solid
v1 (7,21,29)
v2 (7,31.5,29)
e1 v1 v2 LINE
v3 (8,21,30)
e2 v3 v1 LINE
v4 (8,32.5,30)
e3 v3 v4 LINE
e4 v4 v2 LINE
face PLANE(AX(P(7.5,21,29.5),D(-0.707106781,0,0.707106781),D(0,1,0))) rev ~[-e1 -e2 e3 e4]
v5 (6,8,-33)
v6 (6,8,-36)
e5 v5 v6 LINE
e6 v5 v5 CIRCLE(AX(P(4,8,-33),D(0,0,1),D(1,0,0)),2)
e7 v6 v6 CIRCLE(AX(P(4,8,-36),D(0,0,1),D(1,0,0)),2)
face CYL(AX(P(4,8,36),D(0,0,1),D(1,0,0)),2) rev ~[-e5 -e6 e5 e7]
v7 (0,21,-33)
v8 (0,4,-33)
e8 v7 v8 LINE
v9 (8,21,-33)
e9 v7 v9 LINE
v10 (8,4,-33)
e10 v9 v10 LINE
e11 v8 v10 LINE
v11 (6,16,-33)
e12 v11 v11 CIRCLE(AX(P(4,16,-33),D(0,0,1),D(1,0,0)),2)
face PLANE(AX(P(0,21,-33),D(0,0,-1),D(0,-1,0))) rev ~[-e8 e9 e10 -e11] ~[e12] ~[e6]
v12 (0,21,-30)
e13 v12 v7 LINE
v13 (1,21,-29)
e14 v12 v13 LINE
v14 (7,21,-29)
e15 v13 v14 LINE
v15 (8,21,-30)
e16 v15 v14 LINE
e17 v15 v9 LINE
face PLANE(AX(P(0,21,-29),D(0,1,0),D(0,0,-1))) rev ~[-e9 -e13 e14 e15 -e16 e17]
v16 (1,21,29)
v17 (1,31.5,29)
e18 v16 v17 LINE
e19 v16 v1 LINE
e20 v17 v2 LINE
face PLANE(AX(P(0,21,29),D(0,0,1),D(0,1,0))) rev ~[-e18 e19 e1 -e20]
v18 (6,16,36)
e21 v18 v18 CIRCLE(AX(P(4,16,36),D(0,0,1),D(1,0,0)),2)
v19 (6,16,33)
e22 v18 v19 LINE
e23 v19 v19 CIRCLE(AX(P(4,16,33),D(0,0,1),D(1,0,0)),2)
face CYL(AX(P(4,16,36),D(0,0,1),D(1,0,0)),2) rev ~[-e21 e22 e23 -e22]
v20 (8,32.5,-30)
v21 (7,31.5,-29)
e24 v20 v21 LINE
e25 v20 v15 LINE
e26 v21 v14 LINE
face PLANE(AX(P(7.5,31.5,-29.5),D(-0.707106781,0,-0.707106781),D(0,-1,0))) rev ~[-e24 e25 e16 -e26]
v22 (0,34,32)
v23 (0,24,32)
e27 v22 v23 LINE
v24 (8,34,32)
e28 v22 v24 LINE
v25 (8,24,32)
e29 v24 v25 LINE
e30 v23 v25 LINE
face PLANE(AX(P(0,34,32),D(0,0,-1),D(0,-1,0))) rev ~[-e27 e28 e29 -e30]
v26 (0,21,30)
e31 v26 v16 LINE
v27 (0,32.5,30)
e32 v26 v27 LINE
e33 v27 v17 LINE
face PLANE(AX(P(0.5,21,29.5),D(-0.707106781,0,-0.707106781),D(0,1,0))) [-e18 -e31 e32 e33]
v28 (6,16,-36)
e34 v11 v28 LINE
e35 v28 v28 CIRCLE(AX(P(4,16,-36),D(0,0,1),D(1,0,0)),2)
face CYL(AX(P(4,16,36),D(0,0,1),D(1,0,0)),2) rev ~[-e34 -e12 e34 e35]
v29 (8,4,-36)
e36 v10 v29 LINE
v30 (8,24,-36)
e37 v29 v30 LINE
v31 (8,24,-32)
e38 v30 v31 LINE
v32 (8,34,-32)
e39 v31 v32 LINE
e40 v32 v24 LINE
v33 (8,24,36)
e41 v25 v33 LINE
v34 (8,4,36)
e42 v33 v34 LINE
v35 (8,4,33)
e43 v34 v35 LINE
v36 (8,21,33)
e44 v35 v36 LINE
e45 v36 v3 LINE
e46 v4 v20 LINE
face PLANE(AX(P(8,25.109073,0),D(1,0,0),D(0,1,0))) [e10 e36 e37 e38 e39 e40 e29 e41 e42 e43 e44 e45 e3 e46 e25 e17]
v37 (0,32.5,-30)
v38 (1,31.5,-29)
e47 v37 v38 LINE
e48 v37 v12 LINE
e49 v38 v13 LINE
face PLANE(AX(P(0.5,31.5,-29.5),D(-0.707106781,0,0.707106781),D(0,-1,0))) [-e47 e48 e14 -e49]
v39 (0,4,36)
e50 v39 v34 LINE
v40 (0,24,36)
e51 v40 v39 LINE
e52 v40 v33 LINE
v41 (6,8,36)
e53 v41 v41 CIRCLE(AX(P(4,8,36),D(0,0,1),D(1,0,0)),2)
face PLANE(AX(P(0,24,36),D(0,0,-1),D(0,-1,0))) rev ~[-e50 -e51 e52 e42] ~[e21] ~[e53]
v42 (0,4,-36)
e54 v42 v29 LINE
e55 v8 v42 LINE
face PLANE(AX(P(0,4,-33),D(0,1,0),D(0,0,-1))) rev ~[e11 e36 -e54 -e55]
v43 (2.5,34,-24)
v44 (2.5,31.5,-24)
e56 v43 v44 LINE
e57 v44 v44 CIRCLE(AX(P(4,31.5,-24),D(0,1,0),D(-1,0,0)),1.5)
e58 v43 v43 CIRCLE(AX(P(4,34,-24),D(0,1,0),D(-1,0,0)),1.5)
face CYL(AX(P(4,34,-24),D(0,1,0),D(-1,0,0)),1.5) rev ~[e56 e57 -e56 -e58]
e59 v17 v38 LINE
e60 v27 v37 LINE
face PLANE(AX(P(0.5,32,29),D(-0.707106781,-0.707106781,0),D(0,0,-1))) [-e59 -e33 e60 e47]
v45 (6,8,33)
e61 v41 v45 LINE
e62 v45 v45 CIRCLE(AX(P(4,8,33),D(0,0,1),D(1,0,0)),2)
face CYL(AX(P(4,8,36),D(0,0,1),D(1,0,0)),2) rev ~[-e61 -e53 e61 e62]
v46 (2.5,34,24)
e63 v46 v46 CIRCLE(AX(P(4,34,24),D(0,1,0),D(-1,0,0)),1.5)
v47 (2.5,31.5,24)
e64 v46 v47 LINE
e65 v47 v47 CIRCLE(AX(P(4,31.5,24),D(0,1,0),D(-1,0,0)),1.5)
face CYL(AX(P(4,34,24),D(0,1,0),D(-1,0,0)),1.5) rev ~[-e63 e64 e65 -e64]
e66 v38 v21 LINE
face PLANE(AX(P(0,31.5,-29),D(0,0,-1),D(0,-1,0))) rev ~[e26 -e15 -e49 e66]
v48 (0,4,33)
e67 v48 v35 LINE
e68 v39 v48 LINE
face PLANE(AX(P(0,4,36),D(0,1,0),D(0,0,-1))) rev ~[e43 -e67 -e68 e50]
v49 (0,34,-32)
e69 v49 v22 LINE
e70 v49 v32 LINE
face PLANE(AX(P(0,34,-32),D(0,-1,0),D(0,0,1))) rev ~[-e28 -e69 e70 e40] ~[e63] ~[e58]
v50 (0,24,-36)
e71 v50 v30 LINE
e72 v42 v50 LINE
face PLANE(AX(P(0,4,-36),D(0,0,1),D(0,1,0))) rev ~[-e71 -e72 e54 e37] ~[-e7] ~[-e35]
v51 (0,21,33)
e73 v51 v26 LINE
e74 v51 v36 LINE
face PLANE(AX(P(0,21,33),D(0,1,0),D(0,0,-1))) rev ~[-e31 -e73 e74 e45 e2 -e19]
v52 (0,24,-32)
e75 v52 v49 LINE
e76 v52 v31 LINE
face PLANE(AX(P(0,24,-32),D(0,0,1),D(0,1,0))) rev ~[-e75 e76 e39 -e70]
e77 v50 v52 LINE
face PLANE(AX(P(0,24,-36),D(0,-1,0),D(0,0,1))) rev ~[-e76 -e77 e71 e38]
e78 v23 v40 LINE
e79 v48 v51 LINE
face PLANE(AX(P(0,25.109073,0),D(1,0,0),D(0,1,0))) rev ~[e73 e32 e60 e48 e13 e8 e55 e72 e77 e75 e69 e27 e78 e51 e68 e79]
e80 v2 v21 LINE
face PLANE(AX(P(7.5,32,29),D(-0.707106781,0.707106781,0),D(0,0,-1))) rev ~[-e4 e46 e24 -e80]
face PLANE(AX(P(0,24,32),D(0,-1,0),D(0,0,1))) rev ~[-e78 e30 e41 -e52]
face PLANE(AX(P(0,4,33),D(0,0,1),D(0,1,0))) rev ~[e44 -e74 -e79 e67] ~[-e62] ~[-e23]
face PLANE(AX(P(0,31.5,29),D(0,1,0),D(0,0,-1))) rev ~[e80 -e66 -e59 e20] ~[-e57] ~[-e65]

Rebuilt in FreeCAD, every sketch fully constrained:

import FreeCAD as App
import Part
import Sketcher

V = App.Vector
Q = App.Units.Quantity


def edges_at(feature, points):
    """Names of the edges that pass closest to the given points."""
    edges = feature.Shape.Edges
    near = lambda p: min(range(len(edges)), key=lambda i: edges[i].distToShape(Part.Vertex(*p))[0])
    return sorted({f"Edge{near(p) + 1}" for p in points})


def add_polygon(sketch, points):
    """Adds a closed chain of lines whose ends are joined by coincident constraints."""
    first, n = sketch.GeometryCount, len(points)
    for a, b in zip(points, points[1:] + points[:1]):
        sketch.addGeometry(Part.LineSegment(App.Vector(*a, 0), App.Vector(*b, 0)), False)
    for i in range(n):
        sketch.addConstraint(Sketcher.Constraint("Coincident", first + i, 2, first + (i + 1) % n, 1))

doc = App.newDocument("Part")
body = doc.addObject("PartDesign::Body", "Body")

# Sketch on YZ plane
sketch1 = body.newObject("Sketcher::SketchObject", "Sketch")
sketch1.AttachmentSupport = (doc.getObject("YZ_Plane"), [""])
sketch1.MapMode = "FlatFace"
add_polygon(sketch1, [(24, 36), (4, 36), (4, 33), (21, 33), (21, 29), (31.5, 29), (31.5, -29), (21, -29), (21, -33), (4, -33), (4, -36), (24, -36), (24, -32), (34, -32), (34, 32), (24, 32)])  # lines 0-15
sketch1.addConstraint(Sketcher.Constraint("Horizontal", 0))
sketch1.addConstraint(Sketcher.Constraint("Vertical", 1))
sketch1.addConstraint(Sketcher.Constraint("Horizontal", 2))
sketch1.addConstraint(Sketcher.Constraint("Vertical", 3))
sketch1.addConstraint(Sketcher.Constraint("Horizontal", 4))
sketch1.addConstraint(Sketcher.Constraint("Vertical", 5))
sketch1.addConstraint(Sketcher.Constraint("Horizontal", 6))
sketch1.addConstraint(Sketcher.Constraint("Vertical", 7))
sketch1.addConstraint(Sketcher.Constraint("Horizontal", 8))
sketch1.addConstraint(Sketcher.Constraint("Vertical", 9))
sketch1.addConstraint(Sketcher.Constraint("Horizontal", 10))
sketch1.addConstraint(Sketcher.Constraint("Vertical", 11))
sketch1.addConstraint(Sketcher.Constraint("Horizontal", 12))
sketch1.addConstraint(Sketcher.Constraint("Vertical", 13))
sketch1.addConstraint(Sketcher.Constraint("Horizontal", 14))
sketch1.addConstraint(Sketcher.Constraint("Vertical", 15))
sketch1.addConstraint(Sketcher.Constraint("Symmetric", 3, 2, 6, 2, -1))
sketch1.addConstraint(Sketcher.Constraint("Symmetric", 1, 2, 8, 2, -1))
sketch1.addConstraint(Sketcher.Constraint("Symmetric", 11, 2, 14, 2, -1))
sketch1.addConstraint(Sketcher.Constraint("Equal", 1, 9))
sketch1.addConstraint(Sketcher.Constraint("Equal", 7, 11))
sketch1.addConstraint(Sketcher.Constraint("DistanceX", 0, 2, 0, 1, Q("20 mm")))
sketch1.addConstraint(Sketcher.Constraint("DistanceX", 2, 1, 2, 2, Q("17 mm")))
sketch1.addConstraint(Sketcher.Constraint("DistanceX", 12, 1, 12, 2, Q("10 mm")))
sketch1.addConstraint(Sketcher.Constraint("DistanceY", 1, 2, 1, 1, Q("3 mm")))
sketch1.addConstraint(Sketcher.Constraint("DistanceY", 3, 2, 3, 1, Q("4 mm")))
sketch1.addConstraint(Sketcher.Constraint("DistanceY", 5, 2, 5, 1, Q("58 mm")))
sketch1.addConstraint(Sketcher.Constraint("DistanceX", 4, 1, 4, 2, Q("10.5 mm")))
sketch1.addConstraint(Sketcher.Constraint("DistanceX", -1, 1, 0, 2, Q("4 mm")))
pad1 = body.newObject("PartDesign::Pad", "Pad")
pad1.Profile = sketch1
pad1.Length = 8

# Sketch on XY plane
sketch2 = body.newObject("Sketcher::SketchObject", "Sketch001")
sketch2.AttachmentSupport = (doc.getObject("XY_Plane"), [""])
sketch2.MapMode = "FlatFace"
sketch2.AttachmentOffset = App.Placement(V(0, 0, 36), App.Rotation())
add_polygon(sketch2, [(0, 4), (0, -1), (6, -1), (6, 4)])  # lines 0-3
sketch2.addConstraint(Sketcher.Constraint("Vertical", 0))
sketch2.addConstraint(Sketcher.Constraint("Horizontal", 1))
sketch2.addConstraint(Sketcher.Constraint("Vertical", 2))
sketch2.addConstraint(Sketcher.Constraint("Horizontal", 3))
sketch2.addConstraint(Sketcher.Constraint("PointOnObject", 0, 2, -2))
sketch2.addConstraint(Sketcher.Constraint("DistanceY", 0, 2, 0, 1, Q("5 mm")))
sketch2.addConstraint(Sketcher.Constraint("DistanceY", 0, 2, -1, 1, Q("1 mm")))
sketch2.addConstraint(Sketcher.Constraint("DistanceX", 1, 1, 1, 2, Q("6.02 mm")))
pocket1 = body.newObject("PartDesign::Pocket", "Pocket")
pocket1.Profile = sketch2
pocket1.Length = 72

# Sketch on XZ plane
sketch3 = body.newObject("Sketcher::SketchObject", "Sketch002")
sketch3.AttachmentSupport = (doc.getObject("XZ_Plane"), [""])
sketch3.MapMode = "FlatFace"
sketch3.AttachmentOffset = App.Placement(V(0, 0, -34), App.Rotation())
sketch3.addGeometry(Part.Circle(V(4, 24, 0), V(0, 0, 1), 1.5), False)
sketch3.addGeometry(Part.Circle(V(4, -24, 0), V(0, 0, 1), 1.5), False)
sketch3.addConstraint(Sketcher.Constraint("Equal", 0, 1))
sketch3.addConstraint(Sketcher.Constraint("Symmetric", 0, 3, 1, 3, -1))
sketch3.addConstraint(Sketcher.Constraint("Diameter", 0, Q("3 mm")))
sketch3.addConstraint(Sketcher.Constraint("DistanceX", -1, 1, 0, 3, Q("4 mm")))
sketch3.addConstraint(Sketcher.Constraint("DistanceY", -1, 1, 0, 3, Q("24 mm")))
pocket2 = body.newObject("PartDesign::Pocket", "Pocket001")
pocket2.Profile = sketch3
pocket2.Length = 25
pocket2.Reversed = True

# Sketch on XY plane
sketch4 = body.newObject("Sketcher::SketchObject", "Sketch003")
sketch4.AttachmentSupport = (doc.getObject("XY_Plane"), [""])
sketch4.MapMode = "FlatFace"
sketch4.AttachmentOffset = App.Placement(V(0, 0, 36), App.Rotation())
sketch4.addGeometry(Part.Circle(V(4, 16, 0), V(0, 0, 1), 2), False)
sketch4.addGeometry(Part.Circle(V(4, 8, 0), V(0, 0, 1), 2), False)
sketch4.addConstraint(Sketcher.Constraint("Equal", 0, 1))
sketch4.addConstraint(Sketcher.Constraint("Vertical", 0, 3, 1, 3))
sketch4.addConstraint(Sketcher.Constraint("Diameter", 0, Q("4 mm")))
sketch4.addConstraint(Sketcher.Constraint("DistanceX", -1, 1, 0, 3, Q("4 mm")))
sketch4.addConstraint(Sketcher.Constraint("DistanceY", -1, 1, 0, 3, Q("16 mm")))
sketch4.addConstraint(Sketcher.Constraint("DistanceY", -1, 1, 1, 3, Q("8 mm")))
pocket3 = body.newObject("PartDesign::Pocket", "Pocket002")
pocket3.Profile = sketch4
pocket3.Length = 72
doc.recompute()

chamfer = body.newObject("PartDesign::Chamfer", "Chamfer")
chamfer.Base = (pocket3, edges_at(pocket3, [
    (8, 31.5, 0),
    (0, 31.5, 0),
    (8, 26.25, 29),
    (0, 26.25, 29),
    (8, 26.25, -29),
    (0, 26.25, -29),
]))
chamfer.Size = 1

doc.recompute()
